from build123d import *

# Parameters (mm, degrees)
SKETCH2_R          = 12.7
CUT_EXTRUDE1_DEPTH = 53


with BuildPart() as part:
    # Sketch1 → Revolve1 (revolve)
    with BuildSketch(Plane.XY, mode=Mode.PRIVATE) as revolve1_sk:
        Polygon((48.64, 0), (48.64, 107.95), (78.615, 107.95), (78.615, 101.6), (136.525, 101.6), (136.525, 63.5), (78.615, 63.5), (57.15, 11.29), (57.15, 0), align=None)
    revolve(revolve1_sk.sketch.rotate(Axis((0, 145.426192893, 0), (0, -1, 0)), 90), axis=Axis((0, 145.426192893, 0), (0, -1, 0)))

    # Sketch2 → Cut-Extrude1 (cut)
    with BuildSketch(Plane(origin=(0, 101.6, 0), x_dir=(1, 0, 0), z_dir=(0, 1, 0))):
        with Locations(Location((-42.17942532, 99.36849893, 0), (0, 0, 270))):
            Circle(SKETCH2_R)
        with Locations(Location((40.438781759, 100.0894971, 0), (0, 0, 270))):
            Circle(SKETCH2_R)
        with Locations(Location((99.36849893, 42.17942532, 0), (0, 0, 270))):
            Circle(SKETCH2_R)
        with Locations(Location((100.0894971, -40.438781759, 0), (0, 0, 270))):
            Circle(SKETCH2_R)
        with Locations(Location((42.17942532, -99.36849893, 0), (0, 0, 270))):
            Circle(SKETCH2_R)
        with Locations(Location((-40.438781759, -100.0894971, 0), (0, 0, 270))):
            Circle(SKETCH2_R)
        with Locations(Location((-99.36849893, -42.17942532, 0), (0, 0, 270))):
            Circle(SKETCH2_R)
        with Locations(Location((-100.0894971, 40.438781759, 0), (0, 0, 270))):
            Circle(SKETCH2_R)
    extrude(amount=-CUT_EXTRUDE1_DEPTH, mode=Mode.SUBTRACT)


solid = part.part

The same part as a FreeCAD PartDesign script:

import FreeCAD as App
import Part
import Sketcher
Q = App.Units.Quantity

doc = App.newDocument("Part")
params = doc.addObject("Spreadsheet::Sheet", "Params")
for row, (alias, value) in enumerate([
    ("sketch1_height", "1.5 in"),
    ("sketch1_height2", "4.25 in"),
    ("revolution_angle", "360 deg"),
    ("sketch2_diameter", "1 in"),
    ("pocket1_length", "53 mm"),
], start=1):
    params.set(f"A{row}", alias)
    params.set(f"B{row}", "=" + value)
    params.setAlias(f"B{row}", alias)

body = doc.addObject("PartDesign::Body", "Body")

sketch1 = body.newObject("Sketcher::SketchObject", "Sketch")
sketch1.AttachmentSupport = (doc.getObject("XY_Plane"), [""])
sketch1.MapMode = "FlatFace"
sketch1.addGeometry([
    Part.LineSegment(App.Vector(48.64, 107.95, 0), App.Vector(48.64, 0, 0)),
    Part.LineSegment(App.Vector(48.64, 0, 0), App.Vector(57.15, 0, 0)),
    Part.LineSegment(App.Vector(57.15, 0, 0), App.Vector(57.15, 11.29, 0)),
    Part.LineSegment(App.Vector(57.15, 11.29, 0), App.Vector(78.615, 63.5, 0)),
    Part.LineSegment(App.Vector(78.615, 63.5, 0), App.Vector(136.525, 63.5, 0)),
    Part.LineSegment(App.Vector(136.525, 63.5, 0), App.Vector(136.525, 101.6, 0)),
    Part.LineSegment(App.Vector(136.525, 101.6, 0), App.Vector(78.615, 101.6, 0)),
    Part.LineSegment(App.Vector(78.615, 101.6, 0), App.Vector(78.615, 107.95, 0)),
    Part.LineSegment(App.Vector(78.615, 107.95, 0), App.Vector(48.64, 107.95, 0)),
], False)
sketch1.addConstraint([
    Sketcher.Constraint("Coincident", 0, 2, 1, 1),
    Sketcher.Constraint("Coincident", 1, 2, 2, 1),
    Sketcher.Constraint("Coincident", 2, 2, 3, 1),
    Sketcher.Constraint("Coincident", 3, 2, 4, 1),
    Sketcher.Constraint("Coincident", 4, 2, 5, 1),
    Sketcher.Constraint("Coincident", 5, 2, 6, 1),
    Sketcher.Constraint("Coincident", 6, 2, 7, 1),
    Sketcher.Constraint("Coincident", 7, 2, 8, 1),
    Sketcher.Constraint("Coincident", 8, 2, 0, 1),
    Sketcher.Constraint("Vertical", 0),
    Sketcher.Constraint("Horizontal", 1),
    Sketcher.Constraint("Vertical", 2),
    Sketcher.Constraint("Horizontal", 4),
    Sketcher.Constraint("Vertical", 5),
    Sketcher.Constraint("Horizontal", 6),
    Sketcher.Constraint("Vertical", 7),
    Sketcher.Constraint("Horizontal", 8),
    Sketcher.Constraint("PointOnObject", 0, 2, -1),
    Sketcher.Constraint("Vertical", 3, 2, 6, 2),
    Sketcher.Constraint("DistanceY", 5, 1, 5, 2, Q("1.5 in")),
    Sketcher.Constraint("DistanceY", -1, 1, 5, 2, Q("4 in")),
    Sketcher.Constraint("DistanceY", 0, 2, 0, 1, Q("4.25 in")),
    Sketcher.Constraint("DistanceX", -1, 1, 1, 2, Q("2.25 in")),
    Sketcher.Constraint("DistanceX", -1, 1, 4, 2, Q("5.375 in")),
    Sketcher.Constraint("DistanceX", 1, 1, 1, 2, 8.51),
    Sketcher.Constraint("DistanceX", 4, 1, 4, 2, 57.91),
    Sketcher.Constraint("DistanceY", 2, 1, 2, 2, 11.29),
])
sketch1.setExpression("Constraints[19]", "Params.sketch1_height")
sketch1.setExpression("Constraints[21]", "Params.sketch1_height2")
revolution = body.newObject("PartDesign::Revolution", "Revolution")
revolution.Profile = sketch1
revolution.ReferenceAxis = (sketch1, ["V_Axis"])
revolution.setExpression("Angle", "Params.revolution_angle")

sketch2 = body.newObject("Sketcher::SketchObject", "Sketch001")
sketch2.AttachmentSupport = (doc.getObject("XZ_Plane"), [""])
sketch2.MapMode = "FlatFace"
sketch2.AttachmentOffset = App.Placement(App.Vector(0, 0, -4 * 25.4), App.Rotation())
sketch2.addGeometry([
    Part.Circle(App.Vector(-42.179425, -99.368499, 0), App.Vector(0, 0, 1), 12.7),
    Part.Circle(App.Vector(40.438782, -100.089497, 0), App.Vector(0, 0, 1), 12.7),
    Part.Circle(App.Vector(99.368499, -42.179425, 0), App.Vector(0, 0, 1), 12.7),
    Part.Circle(App.Vector(100.089497, 40.438782, 0), App.Vector(0, 0, 1), 12.7),
    Part.Circle(App.Vector(42.179425, 99.368499, 0), App.Vector(0, 0, 1), 12.7),
    Part.Circle(App.Vector(-40.438782, 100.089497, 0), App.Vector(0, 0, 1), 12.7),
    Part.Circle(App.Vector(-99.368499, 42.179425, 0), App.Vector(0, 0, 1), 12.7),
    Part.Circle(App.Vector(-100.089497, -40.438782, 0), App.Vector(0, 0, 1), 12.7),
], False)
sketch2.addConstraint([
    Sketcher.Constraint("Equal", 0, 1),
    Sketcher.Constraint("Equal", 1, 2),
    Sketcher.Constraint("Equal", 2, 3),
    Sketcher.Constraint("Equal", 3, 4),
    Sketcher.Constraint("Equal", 4, 5),
    Sketcher.Constraint("Equal", 5, 6),
    Sketcher.Constraint("Equal", 6, 7),
    Sketcher.Constraint("Symmetric", 0, 3, 4, 3, -1, 1),
    Sketcher.Constraint("Symmetric", 1, 3, 5, 3, -1, 1),
    Sketcher.Constraint("Symmetric", 2, 3, 6, 3, -1, 1),
    Sketcher.Constraint("Symmetric", 3, 3, 7, 3, -1, 1),
    Sketcher.Constraint("Diameter", 0, Q("1 in")),
    Sketcher.Constraint("DistanceY", 0, 3, -1, 1, 99.368499),
    Sketcher.Constraint("DistanceX", -1, 1, 2, 3, 99.368499),
    Sketcher.Constraint("DistanceY", 1, 3, 0, 3, 0.720998),
    Sketcher.Constraint("DistanceX", 2, 3, 3, 3, 0.720998),
    Sketcher.Constraint("DistanceX", -1, 1, 1, 3, 40.438782),
    Sketcher.Constraint("DistanceY", -1, 1, 3, 3, 40.438782),
    Sketcher.Constraint("DistanceY", 1, 3, 2, 3, 57.910072),
    Sketcher.Constraint("DistanceX", 4, 3, 3, 3, 57.910072),
])
sketch2.setExpression("Constraints[11]", "Params.sketch2_diameter")
pocket1 = body.newObject("PartDesign::Pocket", "Pocket")
pocket1.Profile = sketch2
pocket1.setExpression("Length", "Params.pocket1_length")
pocket1.Reversed = True

doc.recompute()
